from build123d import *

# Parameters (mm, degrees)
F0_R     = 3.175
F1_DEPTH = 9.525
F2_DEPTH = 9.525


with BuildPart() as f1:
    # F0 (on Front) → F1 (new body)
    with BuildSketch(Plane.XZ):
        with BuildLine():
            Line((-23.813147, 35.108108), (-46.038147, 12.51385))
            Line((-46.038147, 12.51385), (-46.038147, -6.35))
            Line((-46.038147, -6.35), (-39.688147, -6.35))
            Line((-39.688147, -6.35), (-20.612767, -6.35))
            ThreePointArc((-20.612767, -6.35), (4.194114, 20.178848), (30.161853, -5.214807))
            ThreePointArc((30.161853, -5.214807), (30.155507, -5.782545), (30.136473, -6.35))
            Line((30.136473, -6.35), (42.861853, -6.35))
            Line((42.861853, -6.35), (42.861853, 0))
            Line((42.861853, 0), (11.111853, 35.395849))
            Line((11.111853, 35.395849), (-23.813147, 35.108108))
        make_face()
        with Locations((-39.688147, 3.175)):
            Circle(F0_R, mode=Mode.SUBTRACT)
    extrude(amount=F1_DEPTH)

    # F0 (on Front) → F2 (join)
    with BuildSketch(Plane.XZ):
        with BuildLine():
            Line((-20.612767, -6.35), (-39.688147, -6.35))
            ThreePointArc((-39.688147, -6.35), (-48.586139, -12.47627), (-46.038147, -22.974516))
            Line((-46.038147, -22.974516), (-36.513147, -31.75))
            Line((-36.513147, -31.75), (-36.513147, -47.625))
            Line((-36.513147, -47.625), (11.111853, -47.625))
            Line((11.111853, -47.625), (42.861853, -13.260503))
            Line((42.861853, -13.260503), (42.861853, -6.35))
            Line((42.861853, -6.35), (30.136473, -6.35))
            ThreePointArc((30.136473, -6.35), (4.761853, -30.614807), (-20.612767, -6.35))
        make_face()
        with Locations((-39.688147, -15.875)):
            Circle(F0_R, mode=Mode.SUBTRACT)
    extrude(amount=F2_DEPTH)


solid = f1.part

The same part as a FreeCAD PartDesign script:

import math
import FreeCAD as App
import Part
import Sketcher
from FreeCAD import Vector
Q = App.Units.Quantity

doc = App.newDocument("Part")
body = doc.addObject("PartDesign::Body", "Body")

sketch1 = body.newObject("Sketcher::SketchObject", "Sketch")
sketch1.AttachmentSupport = (doc.getObject("XZ_Plane"), [""])
sketch1.MapMode = "FlatFace"
sketch1.addGeometry(Part.LineSegment(Vector(-23.813147, 35.108108, 0), Vector(-46.038147, 12.51385, 0)), False)
sketch1.addGeometry(Part.LineSegment(Vector(-46.038147, 12.51385, 0), Vector(-46.038147, -6.35, 0)), False)
sketch1.addGeometry(Part.LineSegment(Vector(-46.038147, -6.35, 0), Vector(-20.612767, -6.35, 0)), False)
sketch1.addGeometry(Part.ArcOfCircle(Part.Circle(Vector(4.761853, -5.214806, 0), Vector(0, 0, 1), 25.4), math.radians(-0.000002), math.radians(182.561554)), False)
sketch1.addGeometry(Part.ArcOfCircle(Part.Circle(Vector(4.760928, -5.214788, 0), Vector(0, 0, 1), 25.400925), math.radians(-2.561503), math.radians(-0.000043)), False)
sketch1.addGeometry(Part.LineSegment(Vector(30.136473, -6.35, 0), Vector(42.861853, -6.35, 0)), False)
sketch1.addGeometry(Part.LineSegment(Vector(42.861853, -6.35, 0), Vector(42.861853, 0, 0)), False)
sketch1.addGeometry(Part.LineSegment(Vector(42.861853, 0, 0), Vector(11.111853, 35.395849, 0)), False)
sketch1.addGeometry(Part.LineSegment(Vector(11.111853, 35.395849, 0), Vector(-23.813147, 35.108108, 0)), False)
sketch1.addGeometry(Part.Circle(Vector(-39.688147, 3.175, 0), Vector(0, 0, 1), 3.175), False)
sketch1.addConstraint(Sketcher.Constraint("Coincident", 0, 2, 1, 1))
sketch1.addConstraint(Sketcher.Constraint("Coincident", 1, 2, 2, 1))
sketch1.addConstraint(Sketcher.Constraint("Coincident", 2, 2, 3, 2))
sketch1.addConstraint(Sketcher.Constraint("Coincident", 3, 1, 4, 2))
sketch1.addConstraint(Sketcher.Constraint("Coincident", 4, 1, 5, 1))
sketch1.addConstraint(Sketcher.Constraint("Coincident", 5, 2, 6, 1))
sketch1.addConstraint(Sketcher.Constraint("Coincident", 6, 2, 7, 1))
sketch1.addConstraint(Sketcher.Constraint("Coincident", 7, 2, 8, 1))
sketch1.addConstraint(Sketcher.Constraint("Coincident", 8, 2, 0, 1))
sketch1.addConstraint(Sketcher.Constraint("Vertical", 1))
sketch1.addConstraint(Sketcher.Constraint("Horizontal", 2))
sketch1.addConstraint(Sketcher.Constraint("Horizontal", 5))
sketch1.addConstraint(Sketcher.Constraint("Vertical", 6))
sketch1.addConstraint(Sketcher.Constraint("PointOnObject", 6, 2, -1))
sketch1.addConstraint(Sketcher.Constraint("Radius", 3, Q("1 in")))
sketch1.addConstraint(Sketcher.Constraint("Diameter", 9, Q("0.25 in")))
sketch1.addConstraint(Sketcher.Constraint("DistanceX", 0, 2, 3, 3, Q("2 in")))
sketch1.addConstraint(Sketcher.Constraint("DistanceY", 6, 1, 6, 2, Q("0.25 in")))
sketch1.addConstraint(Sketcher.Constraint("DistanceX", 3, 1, 5, 2, Q("0.5 in")))
sketch1.addConstraint(Sketcher.Constraint("DistanceY", 1, 2, -1, 1, Q("0.25 in")))
sketch1.addConstraint(Sketcher.Constraint("DistanceX", 9, 3, 3, 3, Q("1.75 in")))
sketch1.addConstraint(Sketcher.Constraint("DistanceX", 3, 3, 7, 2, Q("0.25 in")))
sketch1.addConstraint(Sketcher.Constraint("DistanceY", -1, 1, 9, 3, Q("0.125 in")))
sketch1.addConstraint(Sketcher.Constraint("DistanceX", 0, 2, 8, 2, Q("0.875 in")))
sketch1.addConstraint(Sketcher.Constraint("Radius", 4, Q("25.400925 mm")))
sketch1.addConstraint(Sketcher.Constraint("DistanceX", 2, 1, 2, 2, Q("25.42538 mm")))
sketch1.addConstraint(Sketcher.Constraint("DistanceX", 5, 1, 5, 2, Q("12.72538 mm")))
sketch1.addConstraint(Sketcher.Constraint("DistanceY", 1, 2, 1, 1, Q("18.86385 mm")))
sketch1.addConstraint(Sketcher.Constraint("DistanceX", -1, 1, 4, 3, Q("4.760928 mm")))
sketch1.addConstraint(Sketcher.Constraint("DistanceY", -1, 1, 7, 2, Q("35.395849 mm")))
sketch1.addConstraint(Sketcher.Constraint("DistanceY", 0, 2, 8, 2, Q("22.594258 mm")))
sketch1.addConstraint(Sketcher.Constraint("DistanceY", 3, 1, -1, 1, Q("5.214807 mm")))
pad1 = body.newObject("PartDesign::Pad", "Pad")
pad1.Profile = sketch1
pad1.Length = Q("0.375 in")

sketch2 = body.newObject("Sketcher::SketchObject", "Sketch001")
sketch2.AttachmentSupport = (doc.getObject("XZ_Plane"), [""])
sketch2.MapMode = "FlatFace"
sketch2.addGeometry(Part.LineSegment(Vector(-20.612767, -6.35, 0), Vector(-39.688147, -6.35, 0)), False)
sketch2.addGeometry(Part.ArcOfCircle(Part.Circle(Vector(-39.688147, -15.875, 0), Vector(0, 0, 1), 9.525), math.radians(89.999999), math.radians(228.189686)), False)
sketch2.addGeometry(Part.LineSegment(Vector(-46.038147, -22.974516, 0), Vector(-36.513147, -31.75, 0)), False)
sketch2.addGeometry(Part.LineSegment(Vector(-36.513147, -31.75, 0), Vector(-36.513147, -47.625, 0)), False)
sketch2.addGeometry(Part.LineSegment(Vector(-36.513147, -47.625, 0), Vector(11.111853, -47.625, 0)), False)
sketch2.addGeometry(Part.LineSegment(Vector(11.111853, -47.625, 0), Vector(42.861853, -13.260503, 0)), False)
sketch2.addGeometry(Part.LineSegment(Vector(42.861853, -13.260503, 0), Vector(42.861853, -6.35, 0)), False)
sketch2.addGeometry(Part.LineSegment(Vector(42.861853, -6.35, 0), Vector(30.136473, -6.35, 0)), False)
sketch2.addGeometry(Part.ArcOfCircle(Part.Circle(Vector(4.761853, -5.214807, 0), Vector(0, 0, 1), 25.4), math.radians(-177.438447), math.radians(-2.561553)), False)
sketch2.addGeometry(Part.Circle(Vector(-39.688147, -15.875, 0), Vector(0, 0, 1), 3.175), False)
sketch2.addConstraint(Sketcher.Constraint("Tangent", 0, 2, 1, 1))
sketch2.addConstraint(Sketcher.Constraint("Coincident", 1, 2, 2, 1))
sketch2.addConstraint(Sketcher.Constraint("Coincident", 2, 2, 3, 1))
sketch2.addConstraint(Sketcher.Constraint("Coincident", 3, 2, 4, 1))
sketch2.addConstraint(Sketcher.Constraint("Coincident", 4, 2, 5, 1))
sketch2.addConstraint(Sketcher.Constraint("Coincident", 5, 2, 6, 1))
sketch2.addConstraint(Sketcher.Constraint("Coincident", 6, 2, 7, 1))
sketch2.addConstraint(Sketcher.Constraint("Coincident", 7, 2, 8, 2))
sketch2.addConstraint(Sketcher.Constraint("Coincident", 8, 1, 0, 1))
sketch2.addConstraint(Sketcher.Constraint("Horizontal", 0))
sketch2.addConstraint(Sketcher.Constraint("Vertical", 3))
sketch2.addConstraint(Sketcher.Constraint("Horizontal", 4))
sketch2.addConstraint(Sketcher.Constraint("Vertical", 6))
sketch2.addConstraint(Sketcher.Constraint("Horizontal", 7))
sketch2.addConstraint(Sketcher.Constraint("Coincident", 9, 3, 1, 3))
sketch2.addConstraint(Sketcher.Constraint("Horizontal", 0, 2, 6, 2))
sketch2.addConstraint(Sketcher.Constraint("Radius", 8, Q("1 in")))
sketch2.addConstraint(Sketcher.Constraint("Diameter", 9, Q("0.25 in")))
sketch2.addConstraint(Sketcher.Constraint("Radius", 1, Q("0.375 in")))
sketch2.addConstraint(Sketcher.Constraint("DistanceX", 1, 2, 8, 3, Q("2 in")))
sketch2.addConstraint(Sketcher.Constraint("DistanceY", 2, 2, 0, 2, Q("1 in")))
sketch2.addConstraint(Sketcher.Constraint("DistanceX", 9, 3, 4, 2, Q("2 in")))
sketch2.addConstraint(Sketcher.Constraint("DistanceX", 8, 3, 5, 2, Q("1.5 in")))
sketch2.addConstraint(Sketcher.Constraint("DistanceX", 4, 1, 4, 2, Q("1.875 in")))
sketch2.addConstraint(Sketcher.Constraint("DistanceY", 3, 2, 3, 1, Q("0.625 in")))
sketch2.addConstraint(Sketcher.Constraint("DistanceY", 0, 2, -1, 1, Q("0.25 in")))
sketch2.addConstraint(Sketcher.Constraint("DistanceX", 1, 3, 8, 3, Q("1.75 in")))
sketch2.addConstraint(Sketcher.Constraint("DistanceX", 0, 2, 0, 1, Q("19.07538 mm")))
sketch2.addConstraint(Sketcher.Constraint("Distance", 5, Q("46.786549 mm")))
sketch2.addConstraint(Sketcher.Constraint("DistanceX", 1, 3, -1, 1, Q("39.688147 mm")))
pad2 = body.newObject("PartDesign::Pad", "Pad001")
pad2.Profile = sketch2
pad2.Length = Q("0.375 in")

doc.recompute()
